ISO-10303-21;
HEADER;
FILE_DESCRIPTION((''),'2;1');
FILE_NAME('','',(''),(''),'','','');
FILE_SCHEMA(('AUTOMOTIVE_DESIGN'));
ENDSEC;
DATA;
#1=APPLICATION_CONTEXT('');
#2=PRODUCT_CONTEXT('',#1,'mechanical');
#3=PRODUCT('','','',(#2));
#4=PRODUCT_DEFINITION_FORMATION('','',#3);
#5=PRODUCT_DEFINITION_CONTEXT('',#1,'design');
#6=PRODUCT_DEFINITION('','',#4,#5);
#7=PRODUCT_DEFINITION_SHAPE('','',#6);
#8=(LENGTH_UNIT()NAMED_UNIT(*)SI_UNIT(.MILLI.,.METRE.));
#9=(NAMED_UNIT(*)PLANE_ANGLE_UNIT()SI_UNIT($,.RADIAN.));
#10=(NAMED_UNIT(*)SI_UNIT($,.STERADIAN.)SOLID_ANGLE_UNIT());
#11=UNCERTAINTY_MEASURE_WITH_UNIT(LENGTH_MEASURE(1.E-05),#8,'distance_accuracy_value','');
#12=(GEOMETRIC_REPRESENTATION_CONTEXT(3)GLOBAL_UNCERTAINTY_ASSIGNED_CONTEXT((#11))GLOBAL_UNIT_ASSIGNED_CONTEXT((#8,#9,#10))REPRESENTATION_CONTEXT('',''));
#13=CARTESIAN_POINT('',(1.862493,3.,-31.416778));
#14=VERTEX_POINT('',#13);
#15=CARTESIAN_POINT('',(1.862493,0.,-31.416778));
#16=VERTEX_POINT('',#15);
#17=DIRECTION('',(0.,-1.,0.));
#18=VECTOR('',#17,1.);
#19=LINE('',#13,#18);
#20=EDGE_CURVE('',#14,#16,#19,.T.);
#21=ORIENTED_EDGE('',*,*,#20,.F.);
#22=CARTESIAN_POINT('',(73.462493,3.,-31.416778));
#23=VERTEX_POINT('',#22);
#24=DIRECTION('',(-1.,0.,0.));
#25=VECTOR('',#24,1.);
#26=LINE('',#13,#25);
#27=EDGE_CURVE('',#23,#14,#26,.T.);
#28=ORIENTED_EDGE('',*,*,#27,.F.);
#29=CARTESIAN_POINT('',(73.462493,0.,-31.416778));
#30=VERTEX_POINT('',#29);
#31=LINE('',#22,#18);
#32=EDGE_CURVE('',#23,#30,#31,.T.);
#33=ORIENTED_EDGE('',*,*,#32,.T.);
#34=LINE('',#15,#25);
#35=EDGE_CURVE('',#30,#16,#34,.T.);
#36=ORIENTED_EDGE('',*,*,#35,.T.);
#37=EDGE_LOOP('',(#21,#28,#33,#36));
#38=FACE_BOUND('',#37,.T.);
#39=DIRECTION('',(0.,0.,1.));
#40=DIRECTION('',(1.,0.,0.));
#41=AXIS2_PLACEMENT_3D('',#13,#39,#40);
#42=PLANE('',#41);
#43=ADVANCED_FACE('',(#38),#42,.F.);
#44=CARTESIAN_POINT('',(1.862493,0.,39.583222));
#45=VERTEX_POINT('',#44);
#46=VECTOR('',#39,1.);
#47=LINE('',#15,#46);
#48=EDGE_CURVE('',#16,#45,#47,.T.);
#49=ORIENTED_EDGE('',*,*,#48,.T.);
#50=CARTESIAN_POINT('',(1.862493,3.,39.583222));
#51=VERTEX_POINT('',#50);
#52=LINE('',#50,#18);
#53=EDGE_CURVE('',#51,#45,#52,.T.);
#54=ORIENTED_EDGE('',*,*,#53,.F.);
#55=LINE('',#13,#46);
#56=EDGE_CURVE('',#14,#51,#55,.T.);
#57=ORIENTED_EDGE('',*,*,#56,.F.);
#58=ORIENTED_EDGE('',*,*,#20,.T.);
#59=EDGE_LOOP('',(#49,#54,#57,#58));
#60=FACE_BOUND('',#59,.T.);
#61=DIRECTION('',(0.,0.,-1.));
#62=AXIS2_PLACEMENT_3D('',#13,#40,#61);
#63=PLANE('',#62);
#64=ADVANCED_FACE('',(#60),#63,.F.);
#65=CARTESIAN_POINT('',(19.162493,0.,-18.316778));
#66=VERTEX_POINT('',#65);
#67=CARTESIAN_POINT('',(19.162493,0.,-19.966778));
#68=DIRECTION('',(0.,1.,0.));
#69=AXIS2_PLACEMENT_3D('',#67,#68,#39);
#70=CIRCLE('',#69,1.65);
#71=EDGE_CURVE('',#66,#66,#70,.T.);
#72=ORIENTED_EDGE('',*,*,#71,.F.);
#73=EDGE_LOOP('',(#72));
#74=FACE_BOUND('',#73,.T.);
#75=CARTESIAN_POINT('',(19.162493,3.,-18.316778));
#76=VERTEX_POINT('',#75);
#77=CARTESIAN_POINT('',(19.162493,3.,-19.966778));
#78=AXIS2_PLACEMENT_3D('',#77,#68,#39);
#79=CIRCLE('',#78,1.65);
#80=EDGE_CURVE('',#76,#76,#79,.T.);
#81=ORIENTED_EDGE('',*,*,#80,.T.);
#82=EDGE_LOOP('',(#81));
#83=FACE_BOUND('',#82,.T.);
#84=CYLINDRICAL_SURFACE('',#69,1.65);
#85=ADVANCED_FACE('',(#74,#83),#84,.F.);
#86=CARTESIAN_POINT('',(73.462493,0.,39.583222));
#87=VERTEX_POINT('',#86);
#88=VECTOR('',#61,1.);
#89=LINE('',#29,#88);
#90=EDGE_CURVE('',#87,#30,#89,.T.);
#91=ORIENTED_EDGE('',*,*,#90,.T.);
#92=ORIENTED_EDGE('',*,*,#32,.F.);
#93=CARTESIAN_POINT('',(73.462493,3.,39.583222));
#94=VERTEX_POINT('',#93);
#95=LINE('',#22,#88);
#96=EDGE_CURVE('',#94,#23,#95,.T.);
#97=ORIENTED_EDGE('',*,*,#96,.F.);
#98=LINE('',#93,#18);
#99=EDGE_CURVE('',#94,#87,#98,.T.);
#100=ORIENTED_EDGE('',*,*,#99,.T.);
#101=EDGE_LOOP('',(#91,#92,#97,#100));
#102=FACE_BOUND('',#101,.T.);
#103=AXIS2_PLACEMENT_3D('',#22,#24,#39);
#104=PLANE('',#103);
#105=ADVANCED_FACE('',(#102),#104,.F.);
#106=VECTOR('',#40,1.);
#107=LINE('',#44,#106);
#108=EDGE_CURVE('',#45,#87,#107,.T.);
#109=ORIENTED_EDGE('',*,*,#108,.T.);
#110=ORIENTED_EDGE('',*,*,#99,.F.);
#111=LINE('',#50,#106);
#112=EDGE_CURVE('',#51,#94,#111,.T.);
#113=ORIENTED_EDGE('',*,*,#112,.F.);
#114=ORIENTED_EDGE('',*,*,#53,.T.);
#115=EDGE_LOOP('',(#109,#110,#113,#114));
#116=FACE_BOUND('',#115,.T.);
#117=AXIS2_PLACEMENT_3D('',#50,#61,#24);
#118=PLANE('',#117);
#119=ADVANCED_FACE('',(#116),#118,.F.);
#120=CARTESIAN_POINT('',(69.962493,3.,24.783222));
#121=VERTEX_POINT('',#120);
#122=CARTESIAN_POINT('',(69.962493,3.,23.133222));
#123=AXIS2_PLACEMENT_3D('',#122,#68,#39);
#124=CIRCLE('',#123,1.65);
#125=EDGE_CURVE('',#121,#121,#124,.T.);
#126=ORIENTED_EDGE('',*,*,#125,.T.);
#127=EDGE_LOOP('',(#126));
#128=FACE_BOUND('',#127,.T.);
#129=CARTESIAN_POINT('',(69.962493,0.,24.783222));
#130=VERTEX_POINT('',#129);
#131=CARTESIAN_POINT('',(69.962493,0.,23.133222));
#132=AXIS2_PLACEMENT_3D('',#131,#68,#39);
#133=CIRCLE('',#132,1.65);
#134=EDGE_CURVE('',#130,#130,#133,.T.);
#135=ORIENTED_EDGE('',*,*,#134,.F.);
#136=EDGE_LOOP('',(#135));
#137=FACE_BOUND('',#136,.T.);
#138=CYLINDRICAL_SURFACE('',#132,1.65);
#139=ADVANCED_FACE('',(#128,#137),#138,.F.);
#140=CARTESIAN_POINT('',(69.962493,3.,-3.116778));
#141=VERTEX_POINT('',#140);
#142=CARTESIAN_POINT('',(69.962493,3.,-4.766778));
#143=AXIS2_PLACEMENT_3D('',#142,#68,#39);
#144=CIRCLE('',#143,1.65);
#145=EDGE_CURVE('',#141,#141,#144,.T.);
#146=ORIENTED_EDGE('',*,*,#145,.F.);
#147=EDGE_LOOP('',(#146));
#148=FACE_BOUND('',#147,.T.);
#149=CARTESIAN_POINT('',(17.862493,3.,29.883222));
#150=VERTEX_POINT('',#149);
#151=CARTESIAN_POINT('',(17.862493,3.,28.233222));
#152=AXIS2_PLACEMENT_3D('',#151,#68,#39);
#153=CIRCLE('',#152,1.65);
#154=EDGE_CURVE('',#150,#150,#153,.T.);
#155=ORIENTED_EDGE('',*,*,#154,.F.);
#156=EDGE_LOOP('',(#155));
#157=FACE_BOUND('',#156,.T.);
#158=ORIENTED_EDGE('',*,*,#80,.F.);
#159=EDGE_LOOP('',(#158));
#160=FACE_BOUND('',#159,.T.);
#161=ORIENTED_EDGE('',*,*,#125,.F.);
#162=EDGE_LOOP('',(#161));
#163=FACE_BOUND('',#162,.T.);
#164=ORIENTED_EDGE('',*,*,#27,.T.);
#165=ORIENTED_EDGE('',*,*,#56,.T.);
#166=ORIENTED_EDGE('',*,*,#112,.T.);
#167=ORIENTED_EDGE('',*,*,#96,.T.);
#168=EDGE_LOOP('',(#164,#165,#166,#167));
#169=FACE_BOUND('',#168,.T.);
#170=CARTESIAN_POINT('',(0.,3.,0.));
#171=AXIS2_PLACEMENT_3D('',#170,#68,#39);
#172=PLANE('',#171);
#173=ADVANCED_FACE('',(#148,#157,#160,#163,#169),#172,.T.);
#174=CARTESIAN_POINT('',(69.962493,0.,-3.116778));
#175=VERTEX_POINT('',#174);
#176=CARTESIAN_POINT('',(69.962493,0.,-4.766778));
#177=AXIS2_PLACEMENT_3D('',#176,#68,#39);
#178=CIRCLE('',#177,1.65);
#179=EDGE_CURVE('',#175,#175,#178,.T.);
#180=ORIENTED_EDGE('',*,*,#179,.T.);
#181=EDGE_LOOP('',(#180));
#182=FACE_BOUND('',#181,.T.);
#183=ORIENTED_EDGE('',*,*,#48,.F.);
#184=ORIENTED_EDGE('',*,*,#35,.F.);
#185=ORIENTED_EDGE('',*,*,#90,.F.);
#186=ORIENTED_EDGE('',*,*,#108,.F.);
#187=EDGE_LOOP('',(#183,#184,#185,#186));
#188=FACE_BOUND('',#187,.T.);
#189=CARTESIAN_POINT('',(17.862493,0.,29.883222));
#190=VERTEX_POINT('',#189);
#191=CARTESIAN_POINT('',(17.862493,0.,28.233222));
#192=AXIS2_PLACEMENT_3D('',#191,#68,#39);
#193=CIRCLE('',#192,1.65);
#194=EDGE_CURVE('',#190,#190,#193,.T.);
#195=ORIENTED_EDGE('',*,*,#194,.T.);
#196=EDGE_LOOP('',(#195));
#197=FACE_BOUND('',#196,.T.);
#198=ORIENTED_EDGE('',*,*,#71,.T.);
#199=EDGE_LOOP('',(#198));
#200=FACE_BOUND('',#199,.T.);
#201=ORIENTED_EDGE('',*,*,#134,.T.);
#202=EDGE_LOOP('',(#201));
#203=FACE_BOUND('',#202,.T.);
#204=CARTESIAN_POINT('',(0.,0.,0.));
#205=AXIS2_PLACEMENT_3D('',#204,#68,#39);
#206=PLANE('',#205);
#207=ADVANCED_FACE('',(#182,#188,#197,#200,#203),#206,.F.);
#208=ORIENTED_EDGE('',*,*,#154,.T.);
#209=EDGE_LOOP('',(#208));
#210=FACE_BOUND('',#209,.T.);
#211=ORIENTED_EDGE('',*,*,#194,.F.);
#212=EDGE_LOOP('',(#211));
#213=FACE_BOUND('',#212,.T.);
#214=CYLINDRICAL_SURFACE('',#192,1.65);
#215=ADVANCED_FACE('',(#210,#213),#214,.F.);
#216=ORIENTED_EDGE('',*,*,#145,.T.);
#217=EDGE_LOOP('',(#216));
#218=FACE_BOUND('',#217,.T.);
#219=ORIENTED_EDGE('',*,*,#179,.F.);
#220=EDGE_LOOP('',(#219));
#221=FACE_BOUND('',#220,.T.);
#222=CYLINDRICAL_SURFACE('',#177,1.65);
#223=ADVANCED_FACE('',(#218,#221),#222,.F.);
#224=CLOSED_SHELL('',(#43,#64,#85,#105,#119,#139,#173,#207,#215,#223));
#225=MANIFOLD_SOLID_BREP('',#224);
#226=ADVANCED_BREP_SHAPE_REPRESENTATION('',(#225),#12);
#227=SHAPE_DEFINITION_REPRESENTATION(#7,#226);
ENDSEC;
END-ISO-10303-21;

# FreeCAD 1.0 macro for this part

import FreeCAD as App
import Part
import Sketcher


def add_polygon(sketch, points):
    """Adds a closed chain of lines whose ends are joined by coincident constraints."""
    first, n = sketch.GeometryCount, len(points)
    for a, b in zip(points, points[1:] + points[:1]):
        sketch.addGeometry(Part.LineSegment(App.Vector(*a, 0), App.Vector(*b, 0)), False)
    for i in range(n):
        sketch.addConstraint(Sketcher.Constraint("Coincident", first + i, 2, first + (i + 1) % n, 1))

doc = App.newDocument("Part")
body = doc.addObject("PartDesign::Body", "Body")

# Sketch on XZ plane
sketch1 = body.newObject("Sketcher::SketchObject", "Sketch")
sketch1.AttachmentSupport = (doc.getObject("XZ_Plane"), [""])
sketch1.MapMode = "FlatFace"
add_polygon(sketch1, [(2, -31), (2, 40), (73, 40), (73, -31)])  # lines 0-3
sketch1.addConstraint([
    Sketcher.Constraint("Vertical", 0),
    Sketcher.Constraint("Horizontal", 1),
    Sketcher.Constraint("Vertical", 2),
    Sketcher.Constraint("Horizontal", 3),
    Sketcher.Constraint("DistanceY", 0, 1, 0, 2, 71.0),
    Sketcher.Constraint("DistanceX", 1, 1, 1, 2, 71.6),
    Sketcher.Constraint("DistanceY", -1, 1, 0, 2, 39.583222),
    Sketcher.Constraint("DistanceX", -1, 1, 0, 2, 1.862493),
])
pad1 = body.newObject("PartDesign::Pad", "Pad")
pad1.Profile = sketch1
pad1.Length = 3
pad1.Reversed = True

# Sketch on XZ plane
sketch2 = body.newObject("Sketcher::SketchObject", "Sketch001")
sketch2.AttachmentSupport = (doc.getObject("XZ_Plane"), [""])
sketch2.MapMode = "FlatFace"
sketch2.AttachmentOffset = App.Placement(App.Vector(0, 0, -3), App.Rotation())
sketch2.addGeometry([
    Part.Circle(App.Vector(19.2, -20, 0), App.Vector(0, 0, 1), 1.6),
    Part.Circle(App.Vector(17.9, 28.2, 0), App.Vector(0, 0, 1), 1.6),
    Part.Circle(App.Vector(70, -4.8, 0), App.Vector(0, 0, 1), 1.6),
    Part.Circle(App.Vector(70, 23.1, 0), App.Vector(0, 0, 1), 1.6),
], False)
sketch2.addConstraint([
    Sketcher.Constraint("Equal", 0, 1),
    Sketcher.Constraint("Equal", 1, 2),
    Sketcher.Constraint("Equal", 2, 3),
    Sketcher.Constraint("Vertical", 2, 3, 3, 3),
    Sketcher.Constraint("Diameter", 0, 3.3),
    Sketcher.Constraint("DistanceY", 2, 3, 1, 3, 33.0),
    Sketcher.Constraint("DistanceX", 1, 3, 0, 3, 1.3),
    Sketcher.Constraint("DistanceY", 0, 3, 1, 3, 48.2),
    Sketcher.Constraint("DistanceX", 0, 3, 2, 3, 50.8),
    Sketcher.Constraint("DistanceY", 2, 3, 3, 3, 27.9),
    Sketcher.Constraint("DistanceY", 0, 3, -1, 1, 19.966778),
    Sketcher.Constraint("DistanceX", -1, 1, 0, 3, 19.162493),
])
pocket1 = body.newObject("PartDesign::Pocket", "Pocket")
pocket1.Profile = sketch2
pocket1.Length = 3
pocket1.Reversed = True

doc.recompute()
